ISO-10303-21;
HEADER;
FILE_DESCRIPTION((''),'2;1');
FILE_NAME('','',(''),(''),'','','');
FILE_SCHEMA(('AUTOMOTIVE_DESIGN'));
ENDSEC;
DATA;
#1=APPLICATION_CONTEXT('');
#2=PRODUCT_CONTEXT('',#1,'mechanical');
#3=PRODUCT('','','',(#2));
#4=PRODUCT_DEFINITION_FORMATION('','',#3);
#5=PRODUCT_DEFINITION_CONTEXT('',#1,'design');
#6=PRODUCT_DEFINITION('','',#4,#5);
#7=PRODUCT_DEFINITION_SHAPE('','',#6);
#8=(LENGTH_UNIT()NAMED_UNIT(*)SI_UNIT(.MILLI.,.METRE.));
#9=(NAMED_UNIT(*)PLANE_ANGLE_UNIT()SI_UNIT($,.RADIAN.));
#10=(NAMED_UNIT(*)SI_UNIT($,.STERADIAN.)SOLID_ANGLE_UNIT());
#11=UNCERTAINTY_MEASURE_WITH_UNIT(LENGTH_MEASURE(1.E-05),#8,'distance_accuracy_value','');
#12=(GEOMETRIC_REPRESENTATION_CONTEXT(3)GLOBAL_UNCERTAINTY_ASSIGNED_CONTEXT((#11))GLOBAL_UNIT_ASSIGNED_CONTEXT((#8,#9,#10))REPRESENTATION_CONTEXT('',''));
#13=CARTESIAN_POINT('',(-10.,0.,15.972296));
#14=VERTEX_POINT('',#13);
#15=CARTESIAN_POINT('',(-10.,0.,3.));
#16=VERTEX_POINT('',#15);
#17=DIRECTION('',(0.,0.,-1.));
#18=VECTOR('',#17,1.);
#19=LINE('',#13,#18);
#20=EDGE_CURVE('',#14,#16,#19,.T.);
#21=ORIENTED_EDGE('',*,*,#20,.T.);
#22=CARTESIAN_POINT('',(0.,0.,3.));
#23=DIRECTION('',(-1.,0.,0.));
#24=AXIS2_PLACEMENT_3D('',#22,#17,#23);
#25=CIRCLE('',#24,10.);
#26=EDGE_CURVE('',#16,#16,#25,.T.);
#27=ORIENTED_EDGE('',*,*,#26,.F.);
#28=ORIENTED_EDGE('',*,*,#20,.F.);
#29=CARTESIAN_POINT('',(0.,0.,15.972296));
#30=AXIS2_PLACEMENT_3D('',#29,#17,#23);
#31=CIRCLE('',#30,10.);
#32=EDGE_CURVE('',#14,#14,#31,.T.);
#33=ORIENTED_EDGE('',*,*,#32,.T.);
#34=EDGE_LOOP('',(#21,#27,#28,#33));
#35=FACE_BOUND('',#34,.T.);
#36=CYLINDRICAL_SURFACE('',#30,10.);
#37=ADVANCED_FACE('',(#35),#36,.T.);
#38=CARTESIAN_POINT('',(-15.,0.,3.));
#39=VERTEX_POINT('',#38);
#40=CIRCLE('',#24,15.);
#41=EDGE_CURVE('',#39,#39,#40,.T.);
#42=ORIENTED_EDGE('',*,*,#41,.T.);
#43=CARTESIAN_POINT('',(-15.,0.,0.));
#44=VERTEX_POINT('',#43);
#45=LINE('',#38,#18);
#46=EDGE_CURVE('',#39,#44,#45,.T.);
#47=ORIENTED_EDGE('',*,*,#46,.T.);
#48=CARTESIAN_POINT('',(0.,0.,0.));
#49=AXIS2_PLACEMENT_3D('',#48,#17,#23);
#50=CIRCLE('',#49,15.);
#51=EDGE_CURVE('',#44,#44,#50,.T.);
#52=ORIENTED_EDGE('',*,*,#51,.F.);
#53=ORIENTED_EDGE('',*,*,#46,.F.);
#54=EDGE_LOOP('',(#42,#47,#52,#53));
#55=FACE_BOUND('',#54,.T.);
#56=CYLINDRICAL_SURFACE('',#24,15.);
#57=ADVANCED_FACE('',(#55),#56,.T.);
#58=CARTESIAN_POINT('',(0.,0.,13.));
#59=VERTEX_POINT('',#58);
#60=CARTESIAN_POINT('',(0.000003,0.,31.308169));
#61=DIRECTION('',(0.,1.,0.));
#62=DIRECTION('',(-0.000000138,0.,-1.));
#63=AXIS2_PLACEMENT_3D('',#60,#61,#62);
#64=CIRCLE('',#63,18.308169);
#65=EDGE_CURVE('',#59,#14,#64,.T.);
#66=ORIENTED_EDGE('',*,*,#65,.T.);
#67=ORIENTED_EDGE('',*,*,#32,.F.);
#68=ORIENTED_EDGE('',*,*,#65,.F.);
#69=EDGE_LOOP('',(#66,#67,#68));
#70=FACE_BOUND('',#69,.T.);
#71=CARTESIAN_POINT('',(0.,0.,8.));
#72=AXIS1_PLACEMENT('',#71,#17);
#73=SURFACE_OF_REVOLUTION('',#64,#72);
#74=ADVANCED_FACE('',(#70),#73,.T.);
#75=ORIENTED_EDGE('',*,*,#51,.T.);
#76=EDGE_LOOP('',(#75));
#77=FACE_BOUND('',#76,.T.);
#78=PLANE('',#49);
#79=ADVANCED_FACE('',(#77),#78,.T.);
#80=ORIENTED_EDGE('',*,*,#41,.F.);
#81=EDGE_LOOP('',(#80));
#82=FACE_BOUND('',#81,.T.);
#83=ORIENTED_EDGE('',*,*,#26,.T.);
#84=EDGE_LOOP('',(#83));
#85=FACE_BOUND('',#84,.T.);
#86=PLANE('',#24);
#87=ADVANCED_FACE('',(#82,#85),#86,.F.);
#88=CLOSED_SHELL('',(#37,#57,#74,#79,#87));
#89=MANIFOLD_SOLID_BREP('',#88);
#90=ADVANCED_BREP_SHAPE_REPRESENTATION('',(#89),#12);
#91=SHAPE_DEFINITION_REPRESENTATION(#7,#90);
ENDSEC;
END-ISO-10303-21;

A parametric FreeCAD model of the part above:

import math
import FreeCAD as App
import Part
import Sketcher

doc = App.newDocument("Part")
params = doc.addObject("Spreadsheet::Sheet", "Params")
for row, (alias, value) in enumerate([
    ("sketch1_width", "15 mm"),
    ("sketch1_width2", "5 mm"),
    ("sketch1_height", "13 mm"),
    ("sketch1_height2", "3 mm"),
    ("revolution_angle", "360 deg"),
], start=1):
    params.set(f"A{row}", alias)
    params.set(f"B{row}", "=" + value)
    params.setAlias(f"B{row}", alias)

body = doc.addObject("PartDesign::Body", "Body")

# Sketch on XZ plane
sketch1 = body.newObject("Sketcher::SketchObject", "Sketch")
sketch1.AttachmentSupport = (doc.getObject("XZ_Plane"), [""])
sketch1.MapMode = "FlatFace"
sketch1.addGeometry([
    Part.LineSegment(App.Vector(-15, 0, 0), App.Vector(0, 0, 0)),  # 0
    Part.LineSegment(App.Vector(0, 0, 0), App.Vector(0, 13, 0)),  # 1
    Part.ArcOfCircle(Part.Circle(App.Vector(0, 31.3, 0), App.Vector(0, 0, 1), 18.3), math.radians(-123), math.radians(-90)),  # 2
    Part.LineSegment(App.Vector(-10, 16, 0), App.Vector(-10, 3, 0)),  # 3
    Part.LineSegment(App.Vector(-10, 3, 0), App.Vector(-15, 3, 0)),  # 4
    Part.LineSegment(App.Vector(-15, 3, 0), App.Vector(-15, 0, 0)),  # 5
], False)
sketch1.addConstraint([
    Sketcher.Constraint("Coincident", 0, 2, 1, 1),
    Sketcher.Constraint("Coincident", 1, 2, 2, 2),
    Sketcher.Constraint("Coincident", 2, 1, 3, 1),
    Sketcher.Constraint("Coincident", 3, 2, 4, 1),
    Sketcher.Constraint("Coincident", 4, 2, 5, 1),
    Sketcher.Constraint("Coincident", 5, 2, 0, 1),
    Sketcher.Constraint("Horizontal", 0),
    Sketcher.Constraint("Vertical", 1),
    Sketcher.Constraint("Vertical", 3),
    Sketcher.Constraint("Horizontal", 4),
    Sketcher.Constraint("Vertical", 5),
    Sketcher.Constraint("Coincident", 0, 2, -1, 1),
    Sketcher.Constraint("DistanceX", 0, 1, 0, 2, 15.0),
    Sketcher.Constraint("DistanceX", 4, 2, 4, 1, 5.0),
    Sketcher.Constraint("DistanceY", 1, 1, 1, 2, 13.0),
    Sketcher.Constraint("DistanceY", 5, 2, 5, 1, 3.0),
    Sketcher.Constraint("Radius", 2, 18.308169),
    Sketcher.Constraint("DistanceY", 3, 2, 3, 1, 12.972296),
])
sketch1.setExpression("Constraints[12]", "Params.sketch1_width")
sketch1.setExpression("Constraints[13]", "Params.sketch1_width2")
sketch1.setExpression("Constraints[14]", "Params.sketch1_height")
sketch1.setExpression("Constraints[15]", "Params.sketch1_height2")
revolution = body.newObject("PartDesign::Revolution", "Revolution")
revolution.Profile = sketch1
revolution.ReferenceAxis = (sketch1, ["V_Axis"])
revolution.setExpression("Angle", "Params.revolution_angle")

doc.recompute()
